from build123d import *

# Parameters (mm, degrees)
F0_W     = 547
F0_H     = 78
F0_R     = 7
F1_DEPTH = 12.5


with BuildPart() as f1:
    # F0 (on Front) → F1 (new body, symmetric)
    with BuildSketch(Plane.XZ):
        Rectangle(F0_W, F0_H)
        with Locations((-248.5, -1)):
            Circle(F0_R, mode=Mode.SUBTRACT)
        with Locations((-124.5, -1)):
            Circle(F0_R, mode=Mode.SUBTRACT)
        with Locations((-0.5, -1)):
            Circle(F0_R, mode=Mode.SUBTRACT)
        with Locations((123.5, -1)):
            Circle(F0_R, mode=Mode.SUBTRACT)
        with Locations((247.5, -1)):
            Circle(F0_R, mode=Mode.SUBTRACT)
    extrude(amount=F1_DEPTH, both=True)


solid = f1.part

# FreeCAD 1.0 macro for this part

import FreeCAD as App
import Part
import Sketcher
from FreeCAD import Vector

doc = App.newDocument("Part")
params = doc.addObject("Spreadsheet::Sheet", "Params")
for row, (alias, value) in enumerate([
    ("sketch1_diameter", "14 mm"),
    ("sketch1_width", "547 mm"),
    ("sketch1_height", "78 mm"),
    ("pad1_length", "25 mm"),
], start=1):
    params.set(f"A{row}", alias)
    params.set(f"B{row}", "=" + value)
    params.setAlias(f"B{row}", alias)

body = doc.addObject("PartDesign::Body", "Body")

# Sketch on XZ plane
sketch1 = body.newObject("Sketcher::SketchObject", "Sketch")
sketch1.AttachmentSupport = (doc.getObject("XZ_Plane"), [""])
sketch1.MapMode = "FlatFace"
sketch1.addGeometry(Part.LineSegment(Vector(-273.5, 39, 0), Vector(-273.5, -39, 0)), False)
sketch1.addGeometry(Part.LineSegment(Vector(-273.5, -39, 0), Vector(273.5, -39, 0)), False)
sketch1.addGeometry(Part.LineSegment(Vector(273.5, -39, 0), Vector(273.5, 39, 0)), False)
sketch1.addGeometry(Part.LineSegment(Vector(273.5, 39, 0), Vector(-273.5, 39, 0)), False)
sketch1.addGeometry(Part.Circle(Vector(-248.5, -1, 0), Vector(0, 0, 1), 7), False)
sketch1.addGeometry(Part.Circle(Vector(-124.5, -1, 0), Vector(0, 0, 1), 7), False)
sketch1.addGeometry(Part.Circle(Vector(-0.5, -1, 0), Vector(0, 0, 1), 7), False)
sketch1.addGeometry(Part.Circle(Vector(123.5, -1, 0), Vector(0, 0, 1), 7), False)
sketch1.addGeometry(Part.Circle(Vector(247.5, -1, 0), Vector(0, 0, 1), 7), False)
sketch1.addConstraint(Sketcher.Constraint("Coincident", 0, 2, 1, 1))
sketch1.addConstraint(Sketcher.Constraint("Coincident", 1, 2, 2, 1))
sketch1.addConstraint(Sketcher.Constraint("Coincident", 2, 2, 3, 1))
sketch1.addConstraint(Sketcher.Constraint("Coincident", 3, 2, 0, 1))
sketch1.addConstraint(Sketcher.Constraint("Vertical", 0))
sketch1.addConstraint(Sketcher.Constraint("Horizontal", 1))
sketch1.addConstraint(Sketcher.Constraint("Vertical", 2))
sketch1.addConstraint(Sketcher.Constraint("Horizontal", 3))
sketch1.addConstraint(Sketcher.Constraint("Equal", 4, 5))
sketch1.addConstraint(Sketcher.Constraint("Equal", 5, 6))
sketch1.addConstraint(Sketcher.Constraint("Equal", 6, 7))
sketch1.addConstraint(Sketcher.Constraint("Equal", 7, 8))
sketch1.addConstraint(Sketcher.Constraint("Symmetric", 0, 2, 2, 2, -1, 1))
sketch1.addConstraint(Sketcher.Constraint("Horizontal", 4, 3, 5, 3))
sketch1.addConstraint(Sketcher.Constraint("Horizontal", 5, 3, 6, 3))
sketch1.addConstraint(Sketcher.Constraint("Horizontal", 6, 3, 7, 3))
sketch1.addConstraint(Sketcher.Constraint("Horizontal", 7, 3, 8, 3))
sketch1.addConstraint(Sketcher.Constraint("Diameter", 4, 14.0))
sketch1.addConstraint(Sketcher.Constraint("DistanceX", 1, 1, 1, 2, 547.0))
sketch1.addConstraint(Sketcher.Constraint("DistanceY", 0, 2, 0, 1, 78.0))
sketch1.addConstraint(Sketcher.Constraint("DistanceY", 4, 3, -1, 1, 1.0))
sketch1.addConstraint(Sketcher.Constraint("DistanceX", 4, 3, 5, 3, 124.0))
sketch1.addConstraint(Sketcher.Constraint("DistanceX", 5, 3, 6, 3, 124.0))
sketch1.addConstraint(Sketcher.Constraint("DistanceX", 6, 3, 7, 3, 124.0))
sketch1.addConstraint(Sketcher.Constraint("DistanceX", 7, 3, 8, 3, 124.0))
sketch1.addConstraint(Sketcher.Constraint("DistanceX", 0, 2, 4, 3, 25.0))
sketch1.setExpression("Constraints[17]", "Params.sketch1_diameter")
sketch1.setExpression("Constraints[18]", "Params.sketch1_width")
sketch1.setExpression("Constraints[19]", "Params.sketch1_height")
pad1 = body.newObject("PartDesign::Pad", "Pad")
pad1.Profile = sketch1
pad1.setExpression("Length", "Params.pad1_length")
pad1.Midplane = True

doc.recompute()
